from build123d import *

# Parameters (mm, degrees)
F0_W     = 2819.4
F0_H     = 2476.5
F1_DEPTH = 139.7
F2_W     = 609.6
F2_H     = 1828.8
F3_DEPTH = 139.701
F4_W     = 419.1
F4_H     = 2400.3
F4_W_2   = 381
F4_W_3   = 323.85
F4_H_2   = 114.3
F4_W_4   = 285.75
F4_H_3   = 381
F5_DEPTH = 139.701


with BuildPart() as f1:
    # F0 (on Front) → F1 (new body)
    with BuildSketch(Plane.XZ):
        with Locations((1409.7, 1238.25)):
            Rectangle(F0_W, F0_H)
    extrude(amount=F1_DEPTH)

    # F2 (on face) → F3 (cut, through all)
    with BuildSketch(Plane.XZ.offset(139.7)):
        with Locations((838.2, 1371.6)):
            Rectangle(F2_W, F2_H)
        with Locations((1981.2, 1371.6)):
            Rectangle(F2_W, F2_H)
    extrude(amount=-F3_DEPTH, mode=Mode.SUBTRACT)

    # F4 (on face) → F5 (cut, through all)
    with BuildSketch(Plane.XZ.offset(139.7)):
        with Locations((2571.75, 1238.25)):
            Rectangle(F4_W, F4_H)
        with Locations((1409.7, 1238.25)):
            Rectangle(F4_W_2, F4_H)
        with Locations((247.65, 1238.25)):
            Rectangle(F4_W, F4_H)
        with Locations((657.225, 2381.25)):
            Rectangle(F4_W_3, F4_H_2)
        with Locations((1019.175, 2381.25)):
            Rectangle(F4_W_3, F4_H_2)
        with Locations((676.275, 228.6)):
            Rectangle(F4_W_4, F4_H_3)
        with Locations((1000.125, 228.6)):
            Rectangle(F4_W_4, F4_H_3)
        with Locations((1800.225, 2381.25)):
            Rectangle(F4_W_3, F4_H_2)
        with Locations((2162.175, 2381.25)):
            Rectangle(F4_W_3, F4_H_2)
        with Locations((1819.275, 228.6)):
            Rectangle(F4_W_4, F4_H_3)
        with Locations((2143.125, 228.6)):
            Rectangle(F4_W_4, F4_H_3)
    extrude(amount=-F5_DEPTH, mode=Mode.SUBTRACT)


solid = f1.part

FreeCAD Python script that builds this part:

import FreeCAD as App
import Part
import Sketcher
from FreeCAD import Vector
Q = App.Units.Quantity

doc = App.newDocument("Part")
body = doc.addObject("PartDesign::Body", "Body")

# Sketch on XZ plane
sketch1 = body.newObject("Sketcher::SketchObject", "Sketch")
sketch1.AttachmentSupport = (doc.getObject("XZ_Plane"), [""])
sketch1.MapMode = "FlatFace"
sketch1.addGeometry([
    Part.LineSegment(Vector(0, 2476, 0), Vector(0, 0, 0)),
    Part.LineSegment(Vector(0, 0, 0), Vector(2819, 0, 0)),
    Part.LineSegment(Vector(2819, 0, 0), Vector(2819, 2476, 0)),
    Part.LineSegment(Vector(2819, 2476, 0), Vector(0, 2476, 0)),
], False)
sketch1.addConstraint([
    Sketcher.Constraint("Coincident", 0, 2, 1, 1),
    Sketcher.Constraint("Coincident", 1, 2, 2, 1),
    Sketcher.Constraint("Coincident", 2, 2, 3, 1),
    Sketcher.Constraint("Coincident", 3, 2, 0, 1),
    Sketcher.Constraint("Vertical", 0),
    Sketcher.Constraint("Horizontal", 1),
    Sketcher.Constraint("Vertical", 2),
    Sketcher.Constraint("Horizontal", 3),
    Sketcher.Constraint("Coincident", 0, 2, -1, 1),
    Sketcher.Constraint("DistanceX", 1, 1, 1, 2, Q("111 in")),
    Sketcher.Constraint("DistanceY", 0, 2, 0, 1, Q("97.5 in")),
])
pad1 = body.newObject("PartDesign::Pad", "Pad")
pad1.Profile = sketch1
pad1.Length = Q("5.5 in")

# Sketch on XZ plane
sketch2 = body.newObject("Sketcher::SketchObject", "Sketch001")
sketch2.AttachmentSupport = (doc.getObject("XZ_Plane"), [""])
sketch2.MapMode = "FlatFace"
sketch2.AttachmentOffset = App.Placement(Vector(0, 0, 5.5 * 25.4), App.Rotation())
sketch2.addGeometry([
    Part.LineSegment(Vector(533, 2286, 0), Vector(533, 457, 0)),  # 0
    Part.LineSegment(Vector(533, 457, 0), Vector(1143, 457, 0)),  # 1
    Part.LineSegment(Vector(1143, 457, 0), Vector(1143, 2286, 0)),  # 2
    Part.LineSegment(Vector(1143, 2286, 0), Vector(533, 2286, 0)),  # 3
    Part.LineSegment(Vector(1676, 2286, 0), Vector(1676, 457, 0)),  # 4
    Part.LineSegment(Vector(1676, 457, 0), Vector(2286, 457, 0)),  # 5
    Part.LineSegment(Vector(2286, 457, 0), Vector(2286, 2286, 0)),  # 6
    Part.LineSegment(Vector(2286, 2286, 0), Vector(1676, 2286, 0)),  # 7
], False)
sketch2.addConstraint([
    Sketcher.Constraint("Coincident", 0, 2, 1, 1),
    Sketcher.Constraint("Coincident", 1, 2, 2, 1),
    Sketcher.Constraint("Coincident", 2, 2, 3, 1),
    Sketcher.Constraint("Coincident", 3, 2, 0, 1),
    Sketcher.Constraint("Coincident", 4, 2, 5, 1),
    Sketcher.Constraint("Coincident", 5, 2, 6, 1),
    Sketcher.Constraint("Coincident", 6, 2, 7, 1),
    Sketcher.Constraint("Coincident", 7, 2, 4, 1),
    Sketcher.Constraint("Vertical", 0),
    Sketcher.Constraint("Horizontal", 1),
    Sketcher.Constraint("Vertical", 2),
    Sketcher.Constraint("Horizontal", 3),
    Sketcher.Constraint("Vertical", 4),
    Sketcher.Constraint("Horizontal", 5),
    Sketcher.Constraint("Vertical", 6),
    Sketcher.Constraint("Horizontal", 7),
    Sketcher.Constraint("Horizontal", 1, 2, 4, 2),
    Sketcher.Constraint("Horizontal", 3, 2, 6, 2),
    Sketcher.Constraint("Equal", 3, 5),
    Sketcher.Constraint("DistanceX", 1, 1, 1, 2, Q("24 in")),
    Sketcher.Constraint("DistanceY", 0, 2, 0, 1, Q("72 in")),
    Sketcher.Constraint("DistanceX", -1, 1, 0, 2, Q("21 in")),
    Sketcher.Constraint("DistanceY", -1, 1, 0, 2, Q("18 in")),
    Sketcher.Constraint("DistanceX", -1, 1, 4, 2, Q("66 in")),
])
pocket1 = body.newObject("PartDesign::Pocket", "Pocket")
pocket1.Profile = sketch2
pocket1.Type = "ThroughAll"

# Sketch on XZ plane
sketch3 = body.newObject("Sketcher::SketchObject", "Sketch002")
sketch3.AttachmentSupport = (doc.getObject("XZ_Plane"), [""])
sketch3.MapMode = "FlatFace"
sketch3.AttachmentOffset = App.Placement(Vector(0, 0, 5.5 * 25.4), App.Rotation())
sketch3.addGeometry([
    Part.LineSegment(Vector(2362, 2438, 0), Vector(2362, 38, 0)),  # 0
    Part.LineSegment(Vector(2362, 38, 0), Vector(2781, 38, 0)),  # 1
    Part.LineSegment(Vector(2781, 38, 0), Vector(2781, 2438, 0)),  # 2
    Part.LineSegment(Vector(2781, 2438, 0), Vector(2362, 2438, 0)),  # 3
    Part.LineSegment(Vector(1219, 2438, 0), Vector(1219, 38, 0)),  # 4
    Part.LineSegment(Vector(1219, 38, 0), Vector(1600, 38, 0)),  # 5
    Part.LineSegment(Vector(1600, 38, 0), Vector(1600, 2438, 0)),  # 6
    Part.LineSegment(Vector(1600, 2438, 0), Vector(1219, 2438, 0)),  # 7
    Part.LineSegment(Vector(38, 2438, 0), Vector(38, 38, 0)),  # 8
    Part.LineSegment(Vector(38, 38, 0), Vector(457, 38, 0)),  # 9
    Part.LineSegment(Vector(457, 38, 0), Vector(457, 2438, 0)),  # 10
    Part.LineSegment(Vector(457, 2438, 0), Vector(38, 2438, 0)),  # 11
    Part.LineSegment(Vector(495, 2438, 0), Vector(495, 2324, 0)),  # 12
    Part.LineSegment(Vector(495, 2324, 0), Vector(819, 2324, 0)),  # 13
    Part.LineSegment(Vector(819, 2324, 0), Vector(819, 2438, 0)),  # 14
    Part.LineSegment(Vector(819, 2438, 0), Vector(495, 2438, 0)),  # 15
    Part.LineSegment(Vector(857, 2438, 0), Vector(857, 2324, 0)),  # 16
    Part.LineSegment(Vector(857, 2324, 0), Vector(1181, 2324, 0)),  # 17
    Part.LineSegment(Vector(1181, 2324, 0), Vector(1181, 2438, 0)),  # 18
    Part.LineSegment(Vector(1181, 2438, 0), Vector(857, 2438, 0)),  # 19
    Part.LineSegment(Vector(533, 419, 0), Vector(533, 38, 0)),  # 20
    Part.LineSegment(Vector(533, 38, 0), Vector(819, 38, 0)),  # 21
    Part.LineSegment(Vector(819, 38, 0), Vector(819, 419, 0)),  # 22
    Part.LineSegment(Vector(819, 419, 0), Vector(533, 419, 0)),  # 23
    Part.LineSegment(Vector(857, 419, 0), Vector(857, 38, 0)),  # 24
    Part.LineSegment(Vector(857, 38, 0), Vector(1143, 38, 0)),  # 25
    Part.LineSegment(Vector(1143, 38, 0), Vector(1143, 419, 0)),  # 26
    Part.LineSegment(Vector(1143, 419, 0), Vector(857, 419, 0)),  # 27
    Part.LineSegment(Vector(1638, 2438, 0), Vector(1638, 2324, 0)),  # 28
    Part.LineSegment(Vector(1638, 2324, 0), Vector(1962, 2324, 0)),  # 29
    Part.LineSegment(Vector(1962, 2324, 0), Vector(1962, 2438, 0)),  # 30
    Part.LineSegment(Vector(1962, 2438, 0), Vector(1638, 2438, 0)),  # 31
    Part.LineSegment(Vector(2000, 2438, 0), Vector(2000, 2324, 0)),  # 32
    Part.LineSegment(Vector(2000, 2324, 0), Vector(2324, 2324, 0)),  # 33
    Part.LineSegment(Vector(2324, 2324, 0), Vector(2324, 2438, 0)),  # 34
    Part.LineSegment(Vector(2324, 2438, 0), Vector(2000, 2438, 0)),  # 35
    Part.LineSegment(Vector(1676, 419, 0), Vector(1676, 38, 0)),  # 36
    Part.LineSegment(Vector(1676, 38, 0), Vector(1962, 38, 0)),  # 37
    Part.LineSegment(Vector(1962, 38, 0), Vector(1962, 419, 0)),  # 38
    Part.LineSegment(Vector(1962, 419, 0), Vector(1676, 419, 0)),  # 39
    Part.LineSegment(Vector(2000, 419, 0), Vector(2000, 38, 0)),  # 40
    Part.LineSegment(Vector(2000, 38, 0), Vector(2286, 38, 0)),  # 41
    Part.LineSegment(Vector(2286, 38, 0), Vector(2286, 419, 0)),  # 42
    Part.LineSegment(Vector(2286, 419, 0), Vector(2000, 419, 0)),  # 43
], False)
sketch3.addConstraint([
    Sketcher.Constraint("Coincident", 0, 2, 1, 1),
    Sketcher.Constraint("Coincident", 1, 2, 2, 1),
    Sketcher.Constraint("Coincident", 2, 2, 3, 1),
    Sketcher.Constraint("Coincident", 3, 2, 0, 1),
    Sketcher.Constraint("Coincident", 4, 2, 5, 1),
    Sketcher.Constraint("Coincident", 5, 2, 6, 1),
    Sketcher.Constraint("Coincident", 6, 2, 7, 1),
    Sketcher.Constraint("Coincident", 7, 2, 4, 1),
    Sketcher.Constraint("Coincident", 8, 2, 9, 1),
    Sketcher.Constraint("Coincident", 9, 2, 10, 1),
    Sketcher.Constraint("Coincident", 10, 2, 11, 1),
    Sketcher.Constraint("Coincident", 11, 2, 8, 1),
    Sketcher.Constraint("Coincident", 12, 2, 13, 1),
    Sketcher.Constraint("Coincident", 13, 2, 14, 1),
    Sketcher.Constraint("Coincident", 14, 2, 15, 1),
    Sketcher.Constraint("Coincident", 15, 2, 12, 1),
    Sketcher.Constraint("Coincident", 16, 2, 17, 1),
    Sketcher.Constraint("Coincident", 17, 2, 18, 1),
    Sketcher.Constraint("Coincident", 18, 2, 19, 1),
    Sketcher.Constraint("Coincident", 19, 2, 16, 1),
    Sketcher.Constraint("Coincident", 20, 2, 21, 1),
    Sketcher.Constraint("Coincident", 21, 2, 22, 1),
    Sketcher.Constraint("Coincident", 22, 2, 23, 1),
    Sketcher.Constraint("Coincident", 23, 2, 20, 1),
    Sketcher.Constraint("Coincident", 24, 2, 25, 1),
    Sketcher.Constraint("Coincident", 25, 2, 26, 1),
    Sketcher.Constraint("Coincident", 26, 2, 27, 1),
    Sketcher.Constraint("Coincident", 27, 2, 24, 1),
    Sketcher.Constraint("Coincident", 28, 2, 29, 1),
    Sketcher.Constraint("Coincident", 29, 2, 30, 1),
    Sketcher.Constraint("Coincident", 30, 2, 31, 1),
    Sketcher.Constraint("Coincident", 31, 2, 28, 1),
    Sketcher.Constraint("Coincident", 32, 2, 33, 1),
    Sketcher.Constraint("Coincident", 33, 2, 34, 1),
    Sketcher.Constraint("Coincident", 34, 2, 35, 1),
    Sketcher.Constraint("Coincident", 35, 2, 32, 1),
    Sketcher.Constraint("Coincident", 36, 2, 37, 1),
    Sketcher.Constraint("Coincident", 37, 2, 38, 1),
    Sketcher.Constraint("Coincident", 38, 2, 39, 1),
    Sketcher.Constraint("Coincident", 39, 2, 36, 1),
    Sketcher.Constraint("Coincident", 40, 2, 41, 1),
    Sketcher.Constraint("Coincident", 41, 2, 42, 1),
    Sketcher.Constraint("Coincident", 42, 2, 43, 1),
    Sketcher.Constraint("Coincident", 43, 2, 40, 1),
    Sketcher.Constraint("Vertical", 0),
    Sketcher.Constraint("Horizontal", 1),
    Sketcher.Constraint("Vertical", 2),
    Sketcher.Constraint("Horizontal", 3),
    Sketcher.Constraint("Vertical", 4),
    Sketcher.Constraint("Horizontal", 5),
    Sketcher.Constraint("Vertical", 6),
    Sketcher.Constraint("Horizontal", 7),
    Sketcher.Constraint("Vertical", 8),
    Sketcher.Constraint("Horizontal", 9),
    Sketcher.Constraint("Vertical", 10),
    Sketcher.Constraint("Horizontal", 11),
    Sketcher.Constraint("Vertical", 12),
    Sketcher.Constraint("Horizontal", 13),
    Sketcher.Constraint("Vertical", 14),
    Sketcher.Constraint("Horizontal", 15),
    Sketcher.Constraint("Vertical", 16),
    Sketcher.Constraint("Horizontal", 17),
    Sketcher.Constraint("Vertical", 18),
    Sketcher.Constraint("Horizontal", 19),
    Sketcher.Constraint("Vertical", 20),
    Sketcher.Constraint("Horizontal", 21),
    Sketcher.Constraint("Vertical", 22),
    Sketcher.Constraint("Horizontal", 23),
    Sketcher.Constraint("Vertical", 24),
    Sketcher.Constraint("Horizontal", 25),
    Sketcher.Constraint("Vertical", 26),
    Sketcher.Constraint("Horizontal", 27),
    Sketcher.Constraint("Vertical", 28),
    Sketcher.Constraint("Horizontal", 29),
    Sketcher.Constraint("Vertical", 30),
    Sketcher.Constraint("Horizontal", 31),
    Sketcher.Constraint("Vertical", 32),
    Sketcher.Constraint("Horizontal", 33),
    Sketcher.Constraint("Vertical", 34),
    Sketcher.Constraint("Horizontal", 35),
    Sketcher.Constraint("Vertical", 36),
    Sketcher.Constraint("Horizontal", 37),
    Sketcher.Constraint("Vertical", 38),
    Sketcher.Constraint("Horizontal", 39),
    Sketcher.Constraint("Vertical", 40),
    Sketcher.Constraint("Horizontal", 41),
    Sketcher.Constraint("Vertical", 42),
    Sketcher.Constraint("Horizontal", 43),
    Sketcher.Constraint("Horizontal", 1, 2, 4, 2),
    Sketcher.Constraint("Horizontal", 3, 2, 6, 2),
    Sketcher.Constraint("Horizontal", 5, 2, 8, 2),
    Sketcher.Constraint("Horizontal", 7, 2, 10, 2),
    Sketcher.Constraint("Horizontal", 11, 2, 14, 2),
    Sketcher.Constraint("Horizontal", 13, 2, 16, 2),
    Sketcher.Constraint("Horizontal", 15, 2, 18, 2),
    Sketcher.Constraint("Horizontal", 9, 2, 20, 2),
    Sketcher.Constraint("Horizontal", 21, 2, 24, 2),
    Sketcher.Constraint("Horizontal", 23, 2, 26, 2),
    Sketcher.Constraint("Horizontal", 17, 2, 28, 2),
    Sketcher.Constraint("Horizontal", 19, 2, 30, 2),
    Sketcher.Constraint("Horizontal", 29, 2, 32, 2),
    Sketcher.Constraint("Horizontal", 31, 2, 34, 2),
    Sketcher.Constraint("Horizontal", 25, 2, 36, 2),
    Sketcher.Constraint("Horizontal", 27, 2, 38, 2),
    Sketcher.Constraint("Horizontal", 37, 2, 40, 2),
    Sketcher.Constraint("Horizontal", 39, 2, 42, 2),
    Sketcher.Constraint("Vertical", 14, 2, 21, 2),
    Sketcher.Constraint("Vertical", 19, 2, 24, 2),
    Sketcher.Constraint("Vertical", 30, 2, 37, 2),
    Sketcher.Constraint("Vertical", 35, 2, 40, 2),
    Sketcher.Constraint("Equal", 3, 9),
    Sketcher.Constraint("Equal", 15, 17),
    Sketcher.Constraint("Equal", 23, 25),
    Sketcher.Constraint("Equal", 19, 29),
    Sketcher.Constraint("Equal", 31, 33),
    Sketcher.Constraint("Equal", 27, 37),
    Sketcher.Constraint("Equal", 39, 41),
    Sketcher.Constraint("Equal", 7, 20),
    Sketcher.Constraint("DistanceX", 5, 1, 5, 2, Q("15 in")),
    Sketcher.Constraint("DistanceX", 1, 1, 1, 2, Q("16.5 in")),
    Sketcher.Constraint("DistanceY", 0, 2, 0, 1, Q("94.5 in")),
    Sketcher.Constraint("DistanceY", 12, 2, 12, 1, Q("4.5 in")),
    Sketcher.Constraint("DistanceX", -1, 1, 0, 2, Q("93 in")),
    Sketcher.Constraint("DistanceY", -1, 1, 2, 2, Q("96 in")),
    Sketcher.Constraint("DistanceX", -1, 1, 4, 2, Q("48 in")),
    Sketcher.Constraint("DistanceX", -1, 1, 9, 2, Q("18 in")),
    Sketcher.Constraint("DistanceX", -1, 1, 20, 2, Q("21 in")),
    Sketcher.Constraint("DistanceX", -1, 1, 25, 2, Q("45 in")),
    Sketcher.Constraint("DistanceX", -1, 1, 36, 2, Q("66 in")),
    Sketcher.Constraint("DistanceX", -1, 1, 41, 2, Q("90 in")),
    Sketcher.Constraint("DistanceX", 11, 2, 12, 2, Q("18 in")),
    Sketcher.Constraint("DistanceX", 13, 1, 13, 2, Q("12.75 in")),
])
pocket2 = body.newObject("PartDesign::Pocket", "Pocket001")
pocket2.Profile = sketch3
pocket2.Type = "ThroughAll"

doc.recompute()
